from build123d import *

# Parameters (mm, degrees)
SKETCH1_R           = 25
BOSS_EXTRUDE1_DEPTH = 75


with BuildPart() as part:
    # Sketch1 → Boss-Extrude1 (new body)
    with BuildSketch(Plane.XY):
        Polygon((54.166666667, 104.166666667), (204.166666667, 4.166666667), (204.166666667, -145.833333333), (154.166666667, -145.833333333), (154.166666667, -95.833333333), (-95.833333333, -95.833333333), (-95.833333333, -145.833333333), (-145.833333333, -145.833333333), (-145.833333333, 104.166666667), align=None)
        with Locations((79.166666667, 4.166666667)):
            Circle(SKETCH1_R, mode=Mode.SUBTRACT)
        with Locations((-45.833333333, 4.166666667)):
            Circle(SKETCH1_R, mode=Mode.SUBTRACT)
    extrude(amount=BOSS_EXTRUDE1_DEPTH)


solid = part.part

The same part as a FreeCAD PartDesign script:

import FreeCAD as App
import Part
import Sketcher

V = App.Vector
Q = App.Units.Quantity


def add_polygon(sketch, points):
    """Adds a closed chain of lines whose ends are joined by coincident constraints."""
    first, n = sketch.GeometryCount, len(points)
    for a, b in zip(points, points[1:] + points[:1]):
        sketch.addGeometry(Part.LineSegment(App.Vector(*a, 0), App.Vector(*b, 0)), False)
    for i in range(n):
        sketch.addConstraint(Sketcher.Constraint("Coincident", first + i, 2, first + (i + 1) % n, 1))

doc = App.newDocument("Part")
body = doc.addObject("PartDesign::Body", "Body")

# Sketch on XY plane
sketch1 = doc.addObject("Sketcher::SketchObject", "Sketch")
body.addObject(sketch1)
sketch1.AttachmentSupport = (doc.XY_Plane, [""])
sketch1.MapMode = "FlatFace"
add_polygon(sketch1, [(204, 4), (54, 104), (-146, 104), (-146, -146), (-96, -146), (-96, -96), (154, -96), (154, -146), (204, -146)])  # lines 0-8
sketch1.addGeometry(Part.Circle(V(79, 4, 0), V(0, 0, 1), 25), False)  # 9
sketch1.addGeometry(Part.Circle(V(-46, 4, 0), V(0, 0, 1), 25), False)  # 10
sketch1.addConstraint([
    Sketcher.Constraint("Horizontal", 1),
    Sketcher.Constraint("Vertical", 2),
    Sketcher.Constraint("Horizontal", 3),
    Sketcher.Constraint("Vertical", 4),
    Sketcher.Constraint("Horizontal", 5),
    Sketcher.Constraint("Vertical", 6),
    Sketcher.Constraint("Horizontal", 7),
    Sketcher.Constraint("Vertical", 8),
    Sketcher.Constraint("Equal", 9, 10),
    Sketcher.Constraint("Horizontal", 9, 3, 10, 3),
    Sketcher.Constraint("Horizontal", 3, 2, 6, 2),
    Sketcher.Constraint("Horizontal", 10, 3, 8, 2),
    Sketcher.Constraint("Equal", 3, 7),
    Sketcher.Constraint("Equal", 5, 2),
    Sketcher.Constraint("Equal", 7, 4),
    Sketcher.Constraint("Diameter", 9, Q("50 mm")),
    Sketcher.Constraint("DistanceX", 1, 2, 1, 1, Q("200 mm")),
    Sketcher.Constraint("DistanceX", 3, 1, 3, 2, Q("50 mm")),
    Sketcher.Constraint("DistanceX", 5, 1, 5, 2, Q("250 mm")),
    Sketcher.Constraint("DistanceY", 8, 1, 8, 2, Q("150 mm")),
    Sketcher.Constraint("DistanceX", 10, 3, 9, 3, Q("125 mm")),
    Sketcher.Constraint("DistanceX", 0, 2, 9, 3, Q("25 mm")),
    Sketcher.Constraint("DistanceX", -1, 1, 9, 3, Q("79.166667 mm")),
    Sketcher.Constraint("DistanceY", -1, 1, 9, 3, Q("4.166667 mm")),
])
pad1 = doc.addObject("PartDesign::Pad", "Pad")
body.addObject(pad1)
pad1.Profile = sketch1
pad1.Length = 75

doc.recompute()
